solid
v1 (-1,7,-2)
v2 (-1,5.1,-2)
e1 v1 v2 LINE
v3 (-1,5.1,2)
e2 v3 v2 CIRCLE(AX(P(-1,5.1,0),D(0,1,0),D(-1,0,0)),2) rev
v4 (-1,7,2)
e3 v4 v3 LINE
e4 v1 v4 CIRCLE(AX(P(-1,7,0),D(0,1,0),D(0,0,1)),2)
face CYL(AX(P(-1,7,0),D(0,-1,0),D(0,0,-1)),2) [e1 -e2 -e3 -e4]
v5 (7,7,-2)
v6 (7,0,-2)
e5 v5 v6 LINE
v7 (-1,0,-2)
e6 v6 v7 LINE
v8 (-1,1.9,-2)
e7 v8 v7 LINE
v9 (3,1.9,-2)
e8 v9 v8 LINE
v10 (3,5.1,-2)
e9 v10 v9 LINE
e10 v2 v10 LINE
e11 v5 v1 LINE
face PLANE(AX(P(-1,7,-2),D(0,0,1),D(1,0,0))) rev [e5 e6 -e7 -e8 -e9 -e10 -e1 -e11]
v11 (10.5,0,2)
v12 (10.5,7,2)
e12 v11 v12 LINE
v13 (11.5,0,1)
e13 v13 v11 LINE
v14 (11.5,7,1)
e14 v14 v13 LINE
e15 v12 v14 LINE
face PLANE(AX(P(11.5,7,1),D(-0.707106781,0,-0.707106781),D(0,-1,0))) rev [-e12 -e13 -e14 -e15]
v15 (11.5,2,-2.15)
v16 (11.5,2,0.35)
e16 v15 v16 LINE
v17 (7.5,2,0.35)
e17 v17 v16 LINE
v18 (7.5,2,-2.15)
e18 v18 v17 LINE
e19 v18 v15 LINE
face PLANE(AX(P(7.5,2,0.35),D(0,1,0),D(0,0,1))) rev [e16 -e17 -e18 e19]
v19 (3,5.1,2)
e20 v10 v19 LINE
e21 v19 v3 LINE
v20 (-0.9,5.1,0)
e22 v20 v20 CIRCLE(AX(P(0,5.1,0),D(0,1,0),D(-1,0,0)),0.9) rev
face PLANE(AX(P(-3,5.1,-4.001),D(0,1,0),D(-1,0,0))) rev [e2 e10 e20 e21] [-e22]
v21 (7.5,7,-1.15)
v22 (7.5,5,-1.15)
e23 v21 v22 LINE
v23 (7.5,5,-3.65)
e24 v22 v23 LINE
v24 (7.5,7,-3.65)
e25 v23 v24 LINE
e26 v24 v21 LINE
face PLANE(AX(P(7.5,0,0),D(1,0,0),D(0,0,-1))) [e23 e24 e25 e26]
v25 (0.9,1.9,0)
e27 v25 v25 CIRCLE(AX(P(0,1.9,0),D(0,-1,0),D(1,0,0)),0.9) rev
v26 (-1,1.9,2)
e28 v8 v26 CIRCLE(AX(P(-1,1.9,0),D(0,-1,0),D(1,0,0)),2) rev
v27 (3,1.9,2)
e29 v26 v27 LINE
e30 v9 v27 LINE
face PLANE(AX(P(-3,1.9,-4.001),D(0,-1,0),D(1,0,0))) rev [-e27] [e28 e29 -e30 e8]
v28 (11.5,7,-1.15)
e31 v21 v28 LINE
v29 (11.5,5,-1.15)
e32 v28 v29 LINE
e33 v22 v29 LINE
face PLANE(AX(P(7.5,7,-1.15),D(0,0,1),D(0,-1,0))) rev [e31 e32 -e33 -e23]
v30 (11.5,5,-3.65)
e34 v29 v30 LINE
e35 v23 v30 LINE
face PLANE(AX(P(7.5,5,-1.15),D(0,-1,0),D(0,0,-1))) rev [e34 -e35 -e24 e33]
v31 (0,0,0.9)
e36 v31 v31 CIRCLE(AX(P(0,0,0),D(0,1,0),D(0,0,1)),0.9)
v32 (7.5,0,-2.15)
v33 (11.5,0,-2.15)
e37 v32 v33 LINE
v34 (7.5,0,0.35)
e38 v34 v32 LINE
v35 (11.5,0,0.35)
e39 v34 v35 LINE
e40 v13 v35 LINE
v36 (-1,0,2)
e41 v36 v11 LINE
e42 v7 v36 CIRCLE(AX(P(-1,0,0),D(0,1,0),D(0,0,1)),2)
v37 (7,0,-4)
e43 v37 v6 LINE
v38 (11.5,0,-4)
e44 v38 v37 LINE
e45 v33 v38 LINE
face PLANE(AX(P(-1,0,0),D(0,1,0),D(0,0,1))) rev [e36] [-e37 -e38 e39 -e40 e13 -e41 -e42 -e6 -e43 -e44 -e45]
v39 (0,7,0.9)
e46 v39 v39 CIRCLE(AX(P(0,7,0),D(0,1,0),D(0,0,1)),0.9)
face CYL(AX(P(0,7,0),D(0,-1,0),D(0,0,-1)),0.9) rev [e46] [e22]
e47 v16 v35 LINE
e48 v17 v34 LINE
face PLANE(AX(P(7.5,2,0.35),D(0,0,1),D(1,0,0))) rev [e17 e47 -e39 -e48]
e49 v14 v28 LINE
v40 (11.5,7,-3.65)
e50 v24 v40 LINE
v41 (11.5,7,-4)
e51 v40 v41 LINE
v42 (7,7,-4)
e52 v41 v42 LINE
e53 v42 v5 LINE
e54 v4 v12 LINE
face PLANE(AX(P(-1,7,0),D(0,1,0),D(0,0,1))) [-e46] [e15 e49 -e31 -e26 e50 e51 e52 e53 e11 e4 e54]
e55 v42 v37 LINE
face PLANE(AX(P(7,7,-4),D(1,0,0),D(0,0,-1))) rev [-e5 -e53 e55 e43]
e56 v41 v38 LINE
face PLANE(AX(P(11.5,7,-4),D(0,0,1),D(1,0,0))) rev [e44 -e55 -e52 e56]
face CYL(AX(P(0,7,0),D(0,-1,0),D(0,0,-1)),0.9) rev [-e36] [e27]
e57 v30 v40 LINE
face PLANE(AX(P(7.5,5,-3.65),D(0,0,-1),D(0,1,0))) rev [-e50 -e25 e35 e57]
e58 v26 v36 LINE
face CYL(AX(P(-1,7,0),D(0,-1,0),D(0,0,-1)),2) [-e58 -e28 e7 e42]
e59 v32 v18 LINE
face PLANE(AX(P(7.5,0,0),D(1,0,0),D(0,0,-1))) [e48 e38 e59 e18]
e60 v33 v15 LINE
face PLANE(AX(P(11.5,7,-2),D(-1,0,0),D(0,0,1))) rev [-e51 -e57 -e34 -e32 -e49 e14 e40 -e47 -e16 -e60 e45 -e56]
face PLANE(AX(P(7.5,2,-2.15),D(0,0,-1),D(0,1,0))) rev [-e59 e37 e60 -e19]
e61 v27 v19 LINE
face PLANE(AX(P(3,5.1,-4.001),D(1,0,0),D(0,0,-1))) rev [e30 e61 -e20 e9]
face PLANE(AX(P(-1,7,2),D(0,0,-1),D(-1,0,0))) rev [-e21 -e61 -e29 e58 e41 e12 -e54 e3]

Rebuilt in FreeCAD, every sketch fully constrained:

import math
import FreeCAD as App
import Part
import Sketcher

V = App.Vector


def edges_at(feature, points):
    """Names of the edges that pass closest to the given points."""
    edges = feature.Shape.Edges
    near = lambda p: min(range(len(edges)), key=lambda i: edges[i].distToShape(Part.Vertex(*p))[0])
    return sorted({f"Edge{near(p) + 1}" for p in points})


def add_polygon(sketch, points):
    """Adds a closed chain of lines whose ends are joined by coincident constraints."""
    first, n = sketch.GeometryCount, len(points)
    for a, b in zip(points, points[1:] + points[:1]):
        sketch.addGeometry(Part.LineSegment(App.Vector(*a, 0), App.Vector(*b, 0)), False)
    for i in range(n):
        sketch.addConstraint(Sketcher.Constraint("Coincident", first + i, 2, first + (i + 1) % n, 1))

doc = App.newDocument("Part")
params = doc.addObject("Spreadsheet::Sheet", "Params")
for row, (alias, value) in enumerate([
    ("sketch1_radius", "2 mm"),
    ("sketch1_diameter", "1.8 mm"),
    ("sketch1_width", "8 mm"),
    ("sketch1_height", "6 mm"),
    ("sketch1_width2", "12.5 mm"),
    ("pad1_length", "7 mm"),
    ("sketch2_width", "6 mm"),
    ("sketch2_height", "3.2 mm"),
    ("sketch3_width", "2 mm"),
    ("sketch3_height", "2.5 mm"),
    ("pocket2_length", "4 mm"),
    ("chamfer_size", "1 mm"),
], start=1):
    params.set(f"A{row}", alias)
    params.set(f"B{row}", "=" + value)
    params.setAlias(f"B{row}", alias)

body = doc.addObject("PartDesign::Body", "Body")

# Sketch on XZ plane
sketch1 = body.newObject("Sketcher::SketchObject", "Sketch")
sketch1.AttachmentSupport = (doc.getObject("XZ_Plane"), [""])
sketch1.MapMode = "FlatFace"
sketch1.addGeometry(Part.LineSegment(V(7, -2, 0), V(-1, -2, 0)), False)
sketch1.addGeometry(Part.ArcOfCircle(Part.Circle(V(-1, 0, 0), V(0, 0, 1), 2), math.radians(90), math.radians(270)), False)
sketch1.addGeometry(Part.LineSegment(V(-1, 2, 0), V(11.5, 2, 0)), False)
sketch1.addGeometry(Part.LineSegment(V(11.5, 2, 0), V(11.5, -4, 0)), False)
sketch1.addGeometry(Part.LineSegment(V(11.5, -4, 0), V(7, -4, 0)), False)
sketch1.addGeometry(Part.LineSegment(V(7, -4, 0), V(7, -2, 0)), False)
sketch1.addGeometry(Part.Circle(V(0, 0, 0), V(0, 0, 1), 0.9), False)
sketch1.addConstraint(Sketcher.Constraint("Tangent", 0, 2, 1, 2))
sketch1.addConstraint(Sketcher.Constraint("Tangent", 1, 1, 2, 1))
sketch1.addConstraint(Sketcher.Constraint("Coincident", 2, 2, 3, 1))
sketch1.addConstraint(Sketcher.Constraint("Coincident", 3, 2, 4, 1))
sketch1.addConstraint(Sketcher.Constraint("Coincident", 4, 2, 5, 1))
sketch1.addConstraint(Sketcher.Constraint("Coincident", 5, 2, 0, 1))
sketch1.addConstraint(Sketcher.Constraint("Horizontal", 0))
sketch1.addConstraint(Sketcher.Constraint("Horizontal", 2))
sketch1.addConstraint(Sketcher.Constraint("Vertical", 3))
sketch1.addConstraint(Sketcher.Constraint("Horizontal", 4))
sketch1.addConstraint(Sketcher.Constraint("Vertical", 5))
sketch1.addConstraint(Sketcher.Constraint("Coincident", 6, 3, -1, 1))
sketch1.addConstraint(Sketcher.Constraint("PointOnObject", 1, 3, -1))
sketch1.addConstraint(Sketcher.Constraint("Radius", 1, 2.0))
sketch1.addConstraint(Sketcher.Constraint("Diameter", 6, 1.8))
sketch1.addConstraint(Sketcher.Constraint("DistanceX", 0, 2, 0, 1, 8.0))
sketch1.addConstraint(Sketcher.Constraint("DistanceY", 3, 2, 3, 1, 6.0))
sketch1.addConstraint(Sketcher.Constraint("DistanceX", 2, 1, 2, 2, 12.5))
sketch1.addConstraint(Sketcher.Constraint("DistanceX", 1, 3, -1, 1, 1.0))
sketch1.setExpression("Constraints[13]", "Params.sketch1_radius")
sketch1.setExpression("Constraints[14]", "Params.sketch1_diameter")
sketch1.setExpression("Constraints[15]", "Params.sketch1_width")
sketch1.setExpression("Constraints[16]", "Params.sketch1_height")
sketch1.setExpression("Constraints[17]", "Params.sketch1_width2")
pad1 = body.newObject("PartDesign::Pad", "Pad")
pad1.Profile = sketch1
pad1.setExpression("Length", "Params.pad1_length")
pad1.Reversed = True

# Sketch on XY plane
sketch2 = body.newObject("Sketcher::SketchObject", "Sketch001")
sketch2.AttachmentSupport = (doc.getObject("XY_Plane"), [""])
sketch2.MapMode = "FlatFace"
sketch2.AttachmentOffset = App.Placement(V(0, 0, 2), App.Rotation())
add_polygon(sketch2, [(-3, 5.1), (-3, 1.9), (3, 1.9), (3, 5.1)])  # lines 0-3
sketch2.addConstraint(Sketcher.Constraint("Vertical", 0))
sketch2.addConstraint(Sketcher.Constraint("Horizontal", 1))
sketch2.addConstraint(Sketcher.Constraint("Vertical", 2))
sketch2.addConstraint(Sketcher.Constraint("Horizontal", 3))
sketch2.addConstraint(Sketcher.Constraint("DistanceX", 1, 1, 1, 2, 6.0))
sketch2.addConstraint(Sketcher.Constraint("DistanceY", 0, 2, 0, 1, 3.2))
sketch2.addConstraint(Sketcher.Constraint("DistanceX", 0, 2, -1, 1, 3.0))
sketch2.addConstraint(Sketcher.Constraint("DistanceY", -1, 1, 0, 2, 1.9))
sketch2.setExpression("Constraints[8]", "Params.sketch2_width")
sketch2.setExpression("Constraints[9]", "Params.sketch2_height")
pocket1 = body.newObject("PartDesign::Pocket", "Pocket")
pocket1.Profile = sketch2
pocket1.Type = "UpToFirst"

# Sketch on YZ plane
sketch3 = body.newObject("Sketcher::SketchObject", "Sketch002")
sketch3.AttachmentSupport = (doc.getObject("YZ_Plane"), [""])
sketch3.MapMode = "FlatFace"
sketch3.AttachmentOffset = App.Placement(V(0, 0, 11.5), App.Rotation())
add_polygon(sketch3, [(7, -1.1), (5, -1.1), (5, -3.6), (7, -3.6)])  # lines 0-3
add_polygon(sketch3, [(2, 0.3), (0, 0.3), (0, -2.1), (2, -2.1)])  # lines 4-7
sketch3.addConstraint(Sketcher.Constraint("Horizontal", 0))
sketch3.addConstraint(Sketcher.Constraint("Vertical", 1))
sketch3.addConstraint(Sketcher.Constraint("Horizontal", 2))
sketch3.addConstraint(Sketcher.Constraint("Vertical", 3))
sketch3.addConstraint(Sketcher.Constraint("Horizontal", 4))
sketch3.addConstraint(Sketcher.Constraint("Vertical", 5))
sketch3.addConstraint(Sketcher.Constraint("Horizontal", 6))
sketch3.addConstraint(Sketcher.Constraint("Vertical", 7))
sketch3.addConstraint(Sketcher.Constraint("PointOnObject", 4, 2, -2))
sketch3.addConstraint(Sketcher.Constraint("Equal", 2, 4))
sketch3.addConstraint(Sketcher.Constraint("Equal", 3, 5))
sketch3.addConstraint(Sketcher.Constraint("DistanceX", 0, 2, 0, 1, 2.0))
sketch3.addConstraint(Sketcher.Constraint("DistanceY", 1, 2, 1, 1, 2.5))
sketch3.addConstraint(Sketcher.Constraint("DistanceX", -1, 1, 0, 2, 5.0))
sketch3.addConstraint(Sketcher.Constraint("DistanceY", 1, 2, 4, 2, 4.0))
sketch3.addConstraint(Sketcher.Constraint("DistanceY", 0, 2, -1, 1, 1.15))
sketch3.setExpression("Constraints[19]", "Params.sketch3_width")
sketch3.setExpression("Constraints[20]", "Params.sketch3_height")
pocket2 = body.newObject("PartDesign::Pocket", "Pocket001")
pocket2.Profile = sketch3
pocket2.setExpression("Length", "Params.pocket2_length")
doc.recompute()

chamfer = body.newObject("PartDesign::Chamfer", "Chamfer")
chamfer.Base = (pocket2, edges_at(pocket2, [(11.5, 3.5, 2)]))
chamfer.setExpression("Size", "Params.chamfer_size")

doc.recompute()
